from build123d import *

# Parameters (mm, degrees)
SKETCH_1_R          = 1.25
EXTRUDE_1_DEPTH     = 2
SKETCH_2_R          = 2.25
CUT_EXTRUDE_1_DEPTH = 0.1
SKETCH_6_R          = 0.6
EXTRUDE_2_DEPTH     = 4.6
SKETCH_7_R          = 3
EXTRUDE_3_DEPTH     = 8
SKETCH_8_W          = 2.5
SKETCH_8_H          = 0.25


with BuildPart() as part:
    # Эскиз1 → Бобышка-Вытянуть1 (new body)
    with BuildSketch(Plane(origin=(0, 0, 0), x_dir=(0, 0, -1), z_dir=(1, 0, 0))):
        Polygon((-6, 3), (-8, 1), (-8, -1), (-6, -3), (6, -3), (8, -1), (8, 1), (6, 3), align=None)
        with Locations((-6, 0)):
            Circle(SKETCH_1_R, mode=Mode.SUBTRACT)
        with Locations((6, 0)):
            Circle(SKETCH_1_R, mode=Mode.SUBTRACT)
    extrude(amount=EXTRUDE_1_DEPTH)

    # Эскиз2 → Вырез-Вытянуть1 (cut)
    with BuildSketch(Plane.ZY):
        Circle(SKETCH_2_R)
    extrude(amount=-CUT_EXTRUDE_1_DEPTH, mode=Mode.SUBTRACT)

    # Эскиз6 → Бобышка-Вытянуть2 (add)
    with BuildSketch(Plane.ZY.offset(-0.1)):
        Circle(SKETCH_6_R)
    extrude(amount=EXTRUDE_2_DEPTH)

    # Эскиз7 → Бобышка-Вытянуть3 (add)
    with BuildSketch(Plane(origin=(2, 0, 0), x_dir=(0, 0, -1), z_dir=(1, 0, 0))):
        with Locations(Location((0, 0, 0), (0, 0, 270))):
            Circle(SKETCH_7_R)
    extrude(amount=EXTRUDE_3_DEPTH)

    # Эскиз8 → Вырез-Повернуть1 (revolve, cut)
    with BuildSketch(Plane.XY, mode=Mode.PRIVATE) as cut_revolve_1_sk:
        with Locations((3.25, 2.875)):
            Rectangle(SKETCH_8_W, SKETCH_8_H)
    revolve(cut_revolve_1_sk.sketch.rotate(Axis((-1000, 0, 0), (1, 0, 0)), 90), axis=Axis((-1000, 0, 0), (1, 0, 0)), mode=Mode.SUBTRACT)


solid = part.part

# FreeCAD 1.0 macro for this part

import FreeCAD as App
import Part
import Sketcher

doc = App.newDocument("Part")
params = doc.addObject("Spreadsheet::Sheet", "Params")
for row, (alias, value) in enumerate([
    ("sketch1_diameter", "2.5 mm"),
    ("sketch1_width", "2 mm"),
    ("sketch1_height", "12 mm"),
    ("pad1_length", "2 mm"),
    ("sketch2_diameter", "4.5 mm"),
    ("pocket1_length", "0.1 mm"),
    ("sketch3_diameter", "1.2 mm"),
    ("pad2_length", "4.6 mm"),
    ("sketch4_diameter", "6 mm"),
    ("pad3_length", "8 mm"),
    ("sketch5_width", "2.5 mm"),
    ("sketch5_height", "0.25 mm"),
    ("groove_angle", "360 deg"),
], start=1):
    params.set(f"A{row}", alias)
    params.set(f"B{row}", "=" + value)
    params.setAlias(f"B{row}", alias)

body = doc.addObject("PartDesign::Body", "Body")

# Sketch on YZ plane
sketch1 = body.newObject("Sketcher::SketchObject", "Sketch")
sketch1.AttachmentSupport = (doc.getObject("YZ_Plane"), [""])
sketch1.MapMode = "FlatFace"
sketch1.addGeometry([
    Part.LineSegment(App.Vector(3, 6, 0), App.Vector(1, 8, 0)),  # 0
    Part.LineSegment(App.Vector(1, 8, 0), App.Vector(-1, 8, 0)),  # 1
    Part.LineSegment(App.Vector(-1, 8, 0), App.Vector(-3, 6, 0)),  # 2
    Part.LineSegment(App.Vector(-3, 6, 0), App.Vector(-3, -6, 0)),  # 3
    Part.LineSegment(App.Vector(-3, -6, 0), App.Vector(-1, -8, 0)),  # 4
    Part.LineSegment(App.Vector(-1, -8, 0), App.Vector(1, -8, 0)),  # 5
    Part.LineSegment(App.Vector(1, -8, 0), App.Vector(3, -6, 0)),  # 6
    Part.LineSegment(App.Vector(3, -6, 0), App.Vector(3, 6, 0)),  # 7
    Part.Circle(App.Vector(0, 6, 0), App.Vector(0, 0, 1), 1.25),  # 8
    Part.Circle(App.Vector(0, -6, 0), App.Vector(0, 0, 1), 1.25),  # 9
], False)
sketch1.addConstraint([
    Sketcher.Constraint("Coincident", 0, 2, 1, 1),
    Sketcher.Constraint("Coincident", 1, 2, 2, 1),
    Sketcher.Constraint("Coincident", 2, 2, 3, 1),
    Sketcher.Constraint("Coincident", 3, 2, 4, 1),
    Sketcher.Constraint("Coincident", 4, 2, 5, 1),
    Sketcher.Constraint("Coincident", 5, 2, 6, 1),
    Sketcher.Constraint("Coincident", 6, 2, 7, 1),
    Sketcher.Constraint("Coincident", 7, 2, 0, 1),
    Sketcher.Constraint("Horizontal", 1),
    Sketcher.Constraint("Vertical", 3),
    Sketcher.Constraint("Horizontal", 5),
    Sketcher.Constraint("Vertical", 7),
    Sketcher.Constraint("Equal", 8, 9),
    Sketcher.Constraint("Symmetric", 8, 3, 9, 3, -1, 1),
    Sketcher.Constraint("Symmetric", 0, 2, 4, 2, -1, 1),
    Sketcher.Constraint("Symmetric", 2, 2, 6, 2, -1, 1),
    Sketcher.Constraint("PointOnObject", 8, 3, -2),
    Sketcher.Constraint("Perpendicular", 0, 2),
    Sketcher.Constraint("Perpendicular", 2, 4),
    Sketcher.Constraint("Perpendicular", 4, 6),
    Sketcher.Constraint("Horizontal", 8, 3, 2, 2),
    Sketcher.Constraint("Horizontal", 9, 3, 3, 2),
    Sketcher.Constraint("Vertical", 1, 2, 4, 2),
    Sketcher.Constraint("Diameter", 8, 2.5),
    Sketcher.Constraint("DistanceX", 1, 2, 1, 1, 2.0),
    Sketcher.Constraint("DistanceY", 3, 2, 3, 1, 12.0),
    Sketcher.Constraint("DistanceY", -1, 1, 0, 2, 8.0),
])
sketch1.setExpression("Constraints[23]", "Params.sketch1_diameter")
sketch1.setExpression("Constraints[24]", "Params.sketch1_width")
sketch1.setExpression("Constraints[25]", "Params.sketch1_height")
pad1 = body.newObject("PartDesign::Pad", "Pad")
pad1.Profile = sketch1
pad1.setExpression("Length", "Params.pad1_length")

# Sketch on YZ plane
sketch2 = body.newObject("Sketcher::SketchObject", "Sketch001")
sketch2.AttachmentSupport = (doc.getObject("YZ_Plane"), [""])
sketch2.MapMode = "FlatFace"
sketch2.addGeometry(Part.Circle(App.Vector(0, 0, 0), App.Vector(0, 0, 1), 2.25), False)
sketch2.addConstraint([
    Sketcher.Constraint("Coincident", 0, 3, -1, 1),
    Sketcher.Constraint("Diameter", 0, 4.5),
])
sketch2.setExpression("Constraints[1]", "Params.sketch2_diameter")
pocket1 = body.newObject("PartDesign::Pocket", "Pocket")
pocket1.Profile = sketch2
pocket1.setExpression("Length", "Params.pocket1_length")
pocket1.Reversed = True

# Sketch on YZ plane
sketch3 = body.newObject("Sketcher::SketchObject", "Sketch002")
sketch3.AttachmentSupport = (doc.getObject("YZ_Plane"), [""])
sketch3.MapMode = "FlatFace"
sketch3.AttachmentOffset = App.Placement(App.Vector(0, 0, 0.1), App.Rotation())
sketch3.addGeometry(Part.Circle(App.Vector(0, 0, 0), App.Vector(0, 0, 1), 0.6), False)
sketch3.addConstraint([
    Sketcher.Constraint("Coincident", 0, 3, -1, 1),
    Sketcher.Constraint("Diameter", 0, 1.2),
])
sketch3.setExpression("Constraints[1]", "Params.sketch3_diameter")
pad2 = body.newObject("PartDesign::Pad", "Pad001")
pad2.Profile = sketch3
pad2.setExpression("Length", "Params.pad2_length")
pad2.Reversed = True

# Sketch on YZ plane
sketch4 = body.newObject("Sketcher::SketchObject", "Sketch003")
sketch4.AttachmentSupport = (doc.getObject("YZ_Plane"), [""])
sketch4.MapMode = "FlatFace"
sketch4.AttachmentOffset = App.Placement(App.Vector(0, 0, 2), App.Rotation())
sketch4.addGeometry(Part.Circle(App.Vector(0, 0, 0), App.Vector(0, 0, 1), 3), False)
sketch4.addConstraint([
    Sketcher.Constraint("Coincident", 0, 3, -1, 1),
    Sketcher.Constraint("Diameter", 0, 6.0),
])
sketch4.setExpression("Constraints[1]", "Params.sketch4_diameter")
pad3 = body.newObject("PartDesign::Pad", "Pad002")
pad3.Profile = sketch4
pad3.setExpression("Length", "Params.pad3_length")

# Sketch on XY plane
sketch5 = body.newObject("Sketcher::SketchObject", "Sketch004")
sketch5.AttachmentSupport = (doc.getObject("XY_Plane"), [""])
sketch5.MapMode = "FlatFace"
sketch5.addGeometry([
    Part.LineSegment(App.Vector(2, 3, 0), App.Vector(2, 2.75, 0)),
    Part.LineSegment(App.Vector(2, 2.75, 0), App.Vector(4.5, 2.75, 0)),
    Part.LineSegment(App.Vector(4.5, 2.75, 0), App.Vector(4.5, 3, 0)),
    Part.LineSegment(App.Vector(4.5, 3, 0), App.Vector(2, 3, 0)),
], False)
sketch5.addConstraint([
    Sketcher.Constraint("Coincident", 0, 2, 1, 1),
    Sketcher.Constraint("Coincident", 1, 2, 2, 1),
    Sketcher.Constraint("Coincident", 2, 2, 3, 1),
    Sketcher.Constraint("Coincident", 3, 2, 0, 1),
    Sketcher.Constraint("Vertical", 0),
    Sketcher.Constraint("Horizontal", 1),
    Sketcher.Constraint("Vertical", 2),
    Sketcher.Constraint("Horizontal", 3),
    Sketcher.Constraint("DistanceX", 1, 1, 1, 2, 2.5),
    Sketcher.Constraint("DistanceX", -1, 1, 0, 2, 2.0),
    Sketcher.Constraint("DistanceY", -1, 1, 2, 2, 3.0),
    Sketcher.Constraint("DistanceY", 0, 2, 0, 1, 0.25),
])
sketch5.setExpression("Constraints[8]", "Params.sketch5_width")
sketch5.setExpression("Constraints[11]", "Params.sketch5_height")
groove = body.newObject("PartDesign::Groove", "Groove")
groove.Profile = sketch5
groove.ReferenceAxis = (sketch5, ["H_Axis"])
groove.setExpression("Angle", "Params.groove_angle")

doc.recompute()
